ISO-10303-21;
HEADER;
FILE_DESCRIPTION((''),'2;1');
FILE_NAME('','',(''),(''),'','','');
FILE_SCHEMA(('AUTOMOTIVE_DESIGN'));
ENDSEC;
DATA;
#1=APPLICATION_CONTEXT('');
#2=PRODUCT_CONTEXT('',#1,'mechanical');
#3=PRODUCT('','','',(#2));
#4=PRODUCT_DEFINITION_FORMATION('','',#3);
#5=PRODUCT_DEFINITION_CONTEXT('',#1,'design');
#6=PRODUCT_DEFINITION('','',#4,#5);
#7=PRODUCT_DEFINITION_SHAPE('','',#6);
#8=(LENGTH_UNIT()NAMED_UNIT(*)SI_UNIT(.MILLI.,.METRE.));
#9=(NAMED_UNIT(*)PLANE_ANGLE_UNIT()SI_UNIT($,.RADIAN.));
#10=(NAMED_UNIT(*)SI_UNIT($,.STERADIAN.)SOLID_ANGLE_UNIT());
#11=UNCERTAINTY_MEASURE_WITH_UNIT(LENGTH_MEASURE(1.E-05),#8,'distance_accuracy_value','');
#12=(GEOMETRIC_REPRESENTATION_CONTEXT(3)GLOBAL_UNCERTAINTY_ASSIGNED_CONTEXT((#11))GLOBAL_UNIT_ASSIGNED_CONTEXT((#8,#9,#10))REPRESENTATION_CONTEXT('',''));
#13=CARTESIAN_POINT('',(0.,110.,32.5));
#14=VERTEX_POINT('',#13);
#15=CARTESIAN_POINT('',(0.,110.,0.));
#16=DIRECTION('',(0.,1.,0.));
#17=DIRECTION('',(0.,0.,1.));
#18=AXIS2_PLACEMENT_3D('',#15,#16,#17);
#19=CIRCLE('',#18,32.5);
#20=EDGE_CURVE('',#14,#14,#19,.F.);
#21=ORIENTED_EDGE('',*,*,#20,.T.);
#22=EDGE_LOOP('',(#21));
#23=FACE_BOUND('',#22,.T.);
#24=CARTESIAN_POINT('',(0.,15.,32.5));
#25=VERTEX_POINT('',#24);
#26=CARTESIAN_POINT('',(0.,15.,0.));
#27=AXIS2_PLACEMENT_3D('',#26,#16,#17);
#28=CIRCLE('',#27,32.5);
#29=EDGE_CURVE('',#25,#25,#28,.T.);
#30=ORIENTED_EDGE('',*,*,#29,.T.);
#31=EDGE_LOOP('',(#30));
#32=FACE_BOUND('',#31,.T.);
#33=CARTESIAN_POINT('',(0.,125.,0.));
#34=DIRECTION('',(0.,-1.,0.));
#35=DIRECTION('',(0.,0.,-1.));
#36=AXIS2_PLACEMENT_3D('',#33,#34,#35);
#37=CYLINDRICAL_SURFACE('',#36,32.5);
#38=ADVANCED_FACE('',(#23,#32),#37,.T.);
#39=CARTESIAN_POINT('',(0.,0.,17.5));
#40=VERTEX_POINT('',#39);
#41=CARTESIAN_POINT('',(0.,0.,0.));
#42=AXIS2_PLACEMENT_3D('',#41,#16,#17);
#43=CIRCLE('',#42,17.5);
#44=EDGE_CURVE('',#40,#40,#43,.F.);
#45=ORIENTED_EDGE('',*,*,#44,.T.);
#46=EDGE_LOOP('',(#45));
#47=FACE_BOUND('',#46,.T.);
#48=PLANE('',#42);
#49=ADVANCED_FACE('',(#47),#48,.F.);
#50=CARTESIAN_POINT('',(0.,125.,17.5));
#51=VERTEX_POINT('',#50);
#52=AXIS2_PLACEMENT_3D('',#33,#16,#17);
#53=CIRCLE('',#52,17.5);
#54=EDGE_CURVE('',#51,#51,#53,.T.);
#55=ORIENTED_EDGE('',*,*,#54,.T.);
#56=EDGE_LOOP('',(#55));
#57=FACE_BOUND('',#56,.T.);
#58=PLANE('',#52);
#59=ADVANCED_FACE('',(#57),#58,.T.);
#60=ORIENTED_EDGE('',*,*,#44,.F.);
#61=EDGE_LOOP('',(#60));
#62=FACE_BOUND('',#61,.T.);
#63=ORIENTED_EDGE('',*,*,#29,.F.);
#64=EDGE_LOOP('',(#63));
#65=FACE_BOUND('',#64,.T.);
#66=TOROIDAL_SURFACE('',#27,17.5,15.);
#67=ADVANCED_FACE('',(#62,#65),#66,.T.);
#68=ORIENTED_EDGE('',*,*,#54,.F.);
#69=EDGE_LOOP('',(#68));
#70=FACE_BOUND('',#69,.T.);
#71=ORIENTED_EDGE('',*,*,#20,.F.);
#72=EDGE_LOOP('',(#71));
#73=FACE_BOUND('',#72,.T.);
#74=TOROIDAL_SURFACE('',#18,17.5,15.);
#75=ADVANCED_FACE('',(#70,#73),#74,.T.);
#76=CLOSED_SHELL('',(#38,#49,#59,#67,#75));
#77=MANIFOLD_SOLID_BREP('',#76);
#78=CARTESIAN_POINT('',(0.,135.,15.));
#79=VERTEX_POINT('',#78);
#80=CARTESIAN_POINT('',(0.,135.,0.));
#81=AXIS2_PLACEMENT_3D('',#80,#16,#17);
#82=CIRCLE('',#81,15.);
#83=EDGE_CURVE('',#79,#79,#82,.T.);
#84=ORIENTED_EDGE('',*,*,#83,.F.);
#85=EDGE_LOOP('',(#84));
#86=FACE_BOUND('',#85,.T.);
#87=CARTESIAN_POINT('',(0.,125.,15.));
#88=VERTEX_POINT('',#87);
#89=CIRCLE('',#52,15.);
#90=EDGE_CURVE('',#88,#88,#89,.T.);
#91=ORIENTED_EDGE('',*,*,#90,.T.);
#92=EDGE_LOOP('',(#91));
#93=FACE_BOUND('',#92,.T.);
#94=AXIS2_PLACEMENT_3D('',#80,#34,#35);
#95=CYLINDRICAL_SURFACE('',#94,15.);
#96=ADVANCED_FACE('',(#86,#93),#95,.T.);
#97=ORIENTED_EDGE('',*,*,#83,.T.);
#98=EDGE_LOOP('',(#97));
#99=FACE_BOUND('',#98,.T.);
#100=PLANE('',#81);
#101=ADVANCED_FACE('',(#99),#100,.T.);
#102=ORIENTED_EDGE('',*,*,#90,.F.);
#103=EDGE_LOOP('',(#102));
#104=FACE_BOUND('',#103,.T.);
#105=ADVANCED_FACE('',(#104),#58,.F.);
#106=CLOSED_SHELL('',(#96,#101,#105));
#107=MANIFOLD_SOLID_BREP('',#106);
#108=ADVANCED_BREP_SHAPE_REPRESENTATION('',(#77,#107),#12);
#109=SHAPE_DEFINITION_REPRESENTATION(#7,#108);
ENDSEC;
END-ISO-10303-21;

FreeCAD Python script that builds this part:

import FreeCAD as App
import Part
import Sketcher

V = App.Vector


def edges_at(feature, points):
    """Names of the edges that pass closest to the given points."""
    edges = feature.Shape.Edges
    near = lambda p: min(range(len(edges)), key=lambda i: edges[i].distToShape(Part.Vertex(*p))[0])
    return sorted({f"Edge{near(p) + 1}" for p in points})

doc = App.newDocument("Part")
params = doc.addObject("Spreadsheet::Sheet", "Params")
for row, (alias, value) in enumerate([
    ("sketch1_diameter", "65 mm"),
    ("pad1_length", "125 mm"),
    ("fillet_radius", "15 mm"),
    ("sketch2_diameter", "30 mm"),
    ("pad2_length", "10 mm"),
], start=1):
    params.set(f"A{row}", alias)
    params.set(f"B{row}", "=" + value)
    params.setAlias(f"B{row}", alias)

body = doc.addObject("PartDesign::Body", "Body")

sketch1 = doc.addObject("Sketcher::SketchObject", "Sketch")
body.addObject(sketch1)
sketch1.AttachmentSupport = (doc.XZ_Plane, [""])
sketch1.MapMode = "FlatFace"
sketch1.addGeometry(Part.Circle(V(0, 0, 0), V(0, 0, 1), 32), False)
sketch1.addConstraint([
    Sketcher.Constraint("Coincident", 0, 3, -1, 1),
    Sketcher.Constraint("Diameter", 0, 65.0),
])
sketch1.setExpression("Constraints[1]", "Params.sketch1_diameter")
pad1 = doc.addObject("PartDesign::Pad", "Pad")
body.addObject(pad1)
pad1.Profile = sketch1
pad1.setExpression("Length", "Params.pad1_length")
pad1.Reversed = True
doc.recompute()

fillet = doc.addObject("PartDesign::Fillet", "Fillet")
body.addObject(fillet)
fillet.Base = (pad1, edges_at(pad1, [(0, 0, -32.5), (0, 125, -32.5)]))
fillet.setExpression("Radius", "Params.fillet_radius")
body2 = doc.addObject("PartDesign::Body", "Body001")

sketch2 = doc.addObject("Sketcher::SketchObject", "Sketch001")
body2.addObject(sketch2)
sketch2.AttachmentSupport = (doc.getObject("XZ_Plane001"), [""])
sketch2.MapMode = "FlatFace"
sketch2.AttachmentOffset = App.Placement(V(0, 0, -125), App.Rotation())
sketch2.addGeometry(Part.Circle(V(0, 0, 0), V(0, 0, 1), 15), False)
sketch2.addConstraint([
    Sketcher.Constraint("Coincident", 0, 3, -1, 1),
    Sketcher.Constraint("Diameter", 0, 30.0),
])
sketch2.setExpression("Constraints[1]", "Params.sketch2_diameter")
pad2 = doc.addObject("PartDesign::Pad", "Pad001")
body2.addObject(pad2)
pad2.Profile = sketch2
pad2.setExpression("Length", "Params.pad2_length")
pad2.Reversed = True

doc.recompute()
